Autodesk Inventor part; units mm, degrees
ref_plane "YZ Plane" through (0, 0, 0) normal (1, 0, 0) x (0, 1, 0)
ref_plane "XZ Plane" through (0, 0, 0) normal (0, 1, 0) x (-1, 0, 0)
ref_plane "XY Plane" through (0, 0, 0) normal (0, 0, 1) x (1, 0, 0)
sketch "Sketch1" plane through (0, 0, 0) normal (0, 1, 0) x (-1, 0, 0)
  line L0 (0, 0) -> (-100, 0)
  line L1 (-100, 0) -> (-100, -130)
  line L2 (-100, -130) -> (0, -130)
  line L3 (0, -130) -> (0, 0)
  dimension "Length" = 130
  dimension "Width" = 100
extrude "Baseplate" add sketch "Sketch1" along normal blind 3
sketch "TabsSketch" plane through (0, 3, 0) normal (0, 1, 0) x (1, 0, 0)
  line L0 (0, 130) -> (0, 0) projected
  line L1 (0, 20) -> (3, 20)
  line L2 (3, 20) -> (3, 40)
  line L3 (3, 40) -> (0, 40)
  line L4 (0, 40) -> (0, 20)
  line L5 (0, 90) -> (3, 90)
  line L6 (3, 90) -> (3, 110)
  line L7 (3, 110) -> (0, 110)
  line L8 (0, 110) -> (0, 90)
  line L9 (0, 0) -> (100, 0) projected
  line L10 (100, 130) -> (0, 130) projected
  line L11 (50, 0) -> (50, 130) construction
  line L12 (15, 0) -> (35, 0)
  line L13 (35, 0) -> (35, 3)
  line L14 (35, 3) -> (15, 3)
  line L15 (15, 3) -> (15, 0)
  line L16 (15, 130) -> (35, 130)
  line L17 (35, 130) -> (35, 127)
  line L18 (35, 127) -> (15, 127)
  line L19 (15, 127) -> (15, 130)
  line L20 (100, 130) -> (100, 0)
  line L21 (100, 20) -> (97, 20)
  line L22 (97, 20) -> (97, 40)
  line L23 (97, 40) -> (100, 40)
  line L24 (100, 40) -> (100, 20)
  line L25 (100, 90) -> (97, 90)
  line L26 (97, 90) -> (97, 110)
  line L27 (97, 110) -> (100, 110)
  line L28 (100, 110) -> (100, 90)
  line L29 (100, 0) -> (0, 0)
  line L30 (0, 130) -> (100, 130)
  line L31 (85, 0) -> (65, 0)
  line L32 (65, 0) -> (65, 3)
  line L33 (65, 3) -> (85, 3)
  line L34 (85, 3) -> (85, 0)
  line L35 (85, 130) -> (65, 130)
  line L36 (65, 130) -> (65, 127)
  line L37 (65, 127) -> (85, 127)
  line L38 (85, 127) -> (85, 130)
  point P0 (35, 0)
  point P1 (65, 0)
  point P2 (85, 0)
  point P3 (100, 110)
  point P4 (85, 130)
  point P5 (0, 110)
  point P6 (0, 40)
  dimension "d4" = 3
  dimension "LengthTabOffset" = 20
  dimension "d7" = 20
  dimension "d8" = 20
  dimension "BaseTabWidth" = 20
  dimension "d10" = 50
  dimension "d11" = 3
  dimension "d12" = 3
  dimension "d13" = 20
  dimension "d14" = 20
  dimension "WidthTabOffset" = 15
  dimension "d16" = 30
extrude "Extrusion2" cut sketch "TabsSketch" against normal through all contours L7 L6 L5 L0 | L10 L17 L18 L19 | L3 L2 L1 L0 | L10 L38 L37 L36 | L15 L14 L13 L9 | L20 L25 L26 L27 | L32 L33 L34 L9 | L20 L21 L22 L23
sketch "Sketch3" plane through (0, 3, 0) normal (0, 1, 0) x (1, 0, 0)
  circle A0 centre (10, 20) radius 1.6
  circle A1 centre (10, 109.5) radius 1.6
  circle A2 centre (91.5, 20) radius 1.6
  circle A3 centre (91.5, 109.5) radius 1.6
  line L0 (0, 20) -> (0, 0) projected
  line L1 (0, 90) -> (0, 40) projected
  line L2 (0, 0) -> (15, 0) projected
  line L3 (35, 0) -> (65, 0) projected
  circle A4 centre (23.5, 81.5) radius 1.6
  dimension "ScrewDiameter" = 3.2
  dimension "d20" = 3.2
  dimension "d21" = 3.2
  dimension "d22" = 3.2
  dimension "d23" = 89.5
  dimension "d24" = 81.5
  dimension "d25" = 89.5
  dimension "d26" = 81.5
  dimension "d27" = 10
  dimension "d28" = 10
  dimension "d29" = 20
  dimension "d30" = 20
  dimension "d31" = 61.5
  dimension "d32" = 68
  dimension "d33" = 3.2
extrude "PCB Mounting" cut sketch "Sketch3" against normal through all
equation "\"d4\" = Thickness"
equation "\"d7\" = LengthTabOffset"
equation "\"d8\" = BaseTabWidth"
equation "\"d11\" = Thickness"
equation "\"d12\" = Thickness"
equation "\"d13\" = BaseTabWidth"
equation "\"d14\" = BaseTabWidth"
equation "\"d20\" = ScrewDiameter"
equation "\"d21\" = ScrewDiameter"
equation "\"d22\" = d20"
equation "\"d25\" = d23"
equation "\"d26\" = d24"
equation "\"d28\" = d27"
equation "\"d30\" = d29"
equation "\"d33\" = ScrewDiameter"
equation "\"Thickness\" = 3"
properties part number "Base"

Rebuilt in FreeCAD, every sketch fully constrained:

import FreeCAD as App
import Part
import Sketcher

V = App.Vector

doc = App.newDocument("Part")
body = doc.addObject("PartDesign::Body", "Body")

# Sketch on XZ plane
sketch1 = body.newObject("Sketcher::SketchObject", "Sketch")
sketch1.AttachmentSupport = (doc.getObject("XZ_Plane"), [""])
sketch1.MapMode = "FlatFace"
sketch1.addGeometry([
    Part.LineSegment(V(0, -130, 0), V(0, 0, 0)),
    Part.LineSegment(V(0, 0, 0), V(100, 0, 0)),
    Part.LineSegment(V(100, 0, 0), V(100, -130, 0)),
    Part.LineSegment(V(100, -130, 0), V(0, -130, 0)),
], False)
sketch1.addConstraint([
    Sketcher.Constraint("Coincident", 0, 2, 1, 1),
    Sketcher.Constraint("Coincident", 1, 2, 2, 1),
    Sketcher.Constraint("Coincident", 2, 2, 3, 1),
    Sketcher.Constraint("Coincident", 3, 2, 0, 1),
    Sketcher.Constraint("Vertical", 0),
    Sketcher.Constraint("Horizontal", 1),
    Sketcher.Constraint("Vertical", 2),
    Sketcher.Constraint("Horizontal", 3),
    Sketcher.Constraint("Coincident", 0, 2, -1, 1),
    Sketcher.Constraint("DistanceX", 1, 1, 1, 2, 100.0),
    Sketcher.Constraint("DistanceY", 0, 1, 0, 2, 130.0),
])
pad1 = body.newObject("PartDesign::Pad", "Pad")
pad1.Profile = sketch1
pad1.Length = 3
pad1.Reversed = True

# Sketch on XZ plane
sketch2 = body.newObject("Sketcher::SketchObject", "Sketch001")
sketch2.AttachmentSupport = (doc.getObject("XZ_Plane"), [""])
sketch2.MapMode = "FlatFace"
sketch2.AttachmentOffset = App.Placement(V(0, 0, -3), App.Rotation())
sketch2.addGeometry([
    Part.LineSegment(V(3, -110, 0), V(0, -110, 0)),  # 0
    Part.LineSegment(V(0, -110, 0), V(0, -90, 0)),  # 1
    Part.LineSegment(V(0, -90, 0), V(3, -90, 0)),  # 2
    Part.LineSegment(V(3, -90, 0), V(3, -110, 0)),  # 3
    Part.LineSegment(V(35, -130, 0), V(15, -130, 0)),  # 4
    Part.LineSegment(V(15, -130, 0), V(15, -127, 0)),  # 5
    Part.LineSegment(V(15, -127, 0), V(35, -127, 0)),  # 6
    Part.LineSegment(V(35, -127, 0), V(35, -130, 0)),  # 7
    Part.LineSegment(V(3, -40, 0), V(0, -40, 0)),  # 8
    Part.LineSegment(V(0, -40, 0), V(0, -20, 0)),  # 9
    Part.LineSegment(V(0, -20, 0), V(3, -20, 0)),  # 10
    Part.LineSegment(V(3, -20, 0), V(3, -40, 0)),  # 11
    Part.LineSegment(V(85, -130, 0), V(65, -130, 0)),  # 12
    Part.LineSegment(V(65, -130, 0), V(65, -127, 0)),  # 13
    Part.LineSegment(V(65, -127, 0), V(85, -127, 0)),  # 14
    Part.LineSegment(V(85, -127, 0), V(85, -130, 0)),  # 15
    Part.LineSegment(V(15, -3, 0), V(15, 0, 0)),  # 16
    Part.LineSegment(V(15, 0, 0), V(35, 0, 0)),  # 17
    Part.LineSegment(V(35, 0, 0), V(35, -3, 0)),  # 18
    Part.LineSegment(V(35, -3, 0), V(15, -3, 0)),  # 19
    Part.LineSegment(V(100, -90, 0), V(100, -110, 0)),  # 20
    Part.LineSegment(V(100, -110, 0), V(97, -110, 0)),  # 21
    Part.LineSegment(V(97, -110, 0), V(97, -90, 0)),  # 22
    Part.LineSegment(V(97, -90, 0), V(100, -90, 0)),  # 23
    Part.LineSegment(V(65, -3, 0), V(65, 0, 0)),  # 24
    Part.LineSegment(V(65, 0, 0), V(85, 0, 0)),  # 25
    Part.LineSegment(V(85, 0, 0), V(85, -3, 0)),  # 26
    Part.LineSegment(V(85, -3, 0), V(65, -3, 0)),  # 27
    Part.LineSegment(V(100, -20, 0), V(100, -40, 0)),  # 28
    Part.LineSegment(V(100, -40, 0), V(97, -40, 0)),  # 29
    Part.LineSegment(V(97, -40, 0), V(97, -20, 0)),  # 30
    Part.LineSegment(V(97, -20, 0), V(100, -20, 0)),  # 31
], False)
sketch2.addConstraint([
    Sketcher.Constraint("Coincident", 0, 2, 1, 1),
    Sketcher.Constraint("Coincident", 1, 2, 2, 1),
    Sketcher.Constraint("Coincident", 2, 2, 3, 1),
    Sketcher.Constraint("Coincident", 3, 2, 0, 1),
    Sketcher.Constraint("Coincident", 4, 2, 5, 1),
    Sketcher.Constraint("Coincident", 5, 2, 6, 1),
    Sketcher.Constraint("Coincident", 6, 2, 7, 1),
    Sketcher.Constraint("Coincident", 7, 2, 4, 1),
    Sketcher.Constraint("Coincident", 8, 2, 9, 1),
    Sketcher.Constraint("Coincident", 9, 2, 10, 1),
    Sketcher.Constraint("Coincident", 10, 2, 11, 1),
    Sketcher.Constraint("Coincident", 11, 2, 8, 1),
    Sketcher.Constraint("Coincident", 12, 2, 13, 1),
    Sketcher.Constraint("Coincident", 13, 2, 14, 1),
    Sketcher.Constraint("Coincident", 14, 2, 15, 1),
    Sketcher.Constraint("Coincident", 15, 2, 12, 1),
    Sketcher.Constraint("Coincident", 16, 2, 17, 1),
    Sketcher.Constraint("Coincident", 17, 2, 18, 1),
    Sketcher.Constraint("Coincident", 18, 2, 19, 1),
    Sketcher.Constraint("Coincident", 19, 2, 16, 1),
    Sketcher.Constraint("Coincident", 20, 2, 21, 1),
    Sketcher.Constraint("Coincident", 21, 2, 22, 1),
    Sketcher.Constraint("Coincident", 22, 2, 23, 1),
    Sketcher.Constraint("Coincident", 23, 2, 20, 1),
    Sketcher.Constraint("Coincident", 24, 2, 25, 1),
    Sketcher.Constraint("Coincident", 25, 2, 26, 1),
    Sketcher.Constraint("Coincident", 26, 2, 27, 1),
    Sketcher.Constraint("Coincident", 27, 2, 24, 1),
    Sketcher.Constraint("Coincident", 28, 2, 29, 1),
    Sketcher.Constraint("Coincident", 29, 2, 30, 1),
    Sketcher.Constraint("Coincident", 30, 2, 31, 1),
    Sketcher.Constraint("Coincident", 31, 2, 28, 1),
    Sketcher.Constraint("Horizontal", 0),
    Sketcher.Constraint("Vertical", 1),
    Sketcher.Constraint("Horizontal", 2),
    Sketcher.Constraint("Vertical", 3),
    Sketcher.Constraint("Horizontal", 4),
    Sketcher.Constraint("Vertical", 5),
    Sketcher.Constraint("Horizontal", 6),
    Sketcher.Constraint("Vertical", 7),
    Sketcher.Constraint("Horizontal", 8),
    Sketcher.Constraint("Vertical", 9),
    Sketcher.Constraint("Horizontal", 10),
    Sketcher.Constraint("Vertical", 11),
    Sketcher.Constraint("Horizontal", 12),
    Sketcher.Constraint("Vertical", 13),
    Sketcher.Constraint("Horizontal", 14),
    Sketcher.Constraint("Vertical", 15),
    Sketcher.Constraint("Vertical", 16),
    Sketcher.Constraint("Horizontal", 17),
    Sketcher.Constraint("Vertical", 18),
    Sketcher.Constraint("Horizontal", 19),
    Sketcher.Constraint("Vertical", 20),
    Sketcher.Constraint("Horizontal", 21),
    Sketcher.Constraint("Vertical", 22),
    Sketcher.Constraint("Horizontal", 23),
    Sketcher.Constraint("Vertical", 24),
    Sketcher.Constraint("Horizontal", 25),
    Sketcher.Constraint("Vertical", 26),
    Sketcher.Constraint("Horizontal", 27),
    Sketcher.Constraint("Vertical", 28),
    Sketcher.Constraint("Horizontal", 29),
    Sketcher.Constraint("Vertical", 30),
    Sketcher.Constraint("Horizontal", 31),
    Sketcher.Constraint("PointOnObject", 0, 2, -2),
    Sketcher.Constraint("PointOnObject", 8, 2, -2),
    Sketcher.Constraint("PointOnObject", 16, 2, -1),
    Sketcher.Constraint("PointOnObject", 24, 2, -1),
    Sketcher.Constraint("Horizontal", 7, 2, 12, 2),
    Sketcher.Constraint("Horizontal", 6, 2, 13, 2),
    Sketcher.Constraint("Horizontal", 3, 2, 20, 2),
    Sketcher.Constraint("Horizontal", 2, 2, 22, 2),
    Sketcher.Constraint("Horizontal", 19, 2, 26, 2),
    Sketcher.Constraint("Horizontal", 11, 2, 28, 2),
    Sketcher.Constraint("Horizontal", 10, 2, 30, 2),
    Sketcher.Constraint("Vertical", 3, 2, 10, 2),
    Sketcher.Constraint("Vertical", 5, 2, 16, 2),
    Sketcher.Constraint("Vertical", 7, 2, 17, 2),
    Sketcher.Constraint("Vertical", 13, 2, 24, 2),
    Sketcher.Constraint("Vertical", 15, 2, 25, 2),
    Sketcher.Constraint("Vertical", 23, 2, 28, 2),
    Sketcher.Constraint("Vertical", 22, 2, 29, 2),
    Sketcher.Constraint("Equal", 6, 12),
    Sketcher.Constraint("Equal", 10, 21),
    Sketcher.Constraint("Equal", 27, 1),
    Sketcher.Constraint("Equal", 31, 5),
    Sketcher.Constraint("Equal", 3, 9),
    Sketcher.Constraint("Equal", 15, 16),
    Sketcher.Constraint("DistanceX", 0, 2, 0, 1, 3.0),
    Sketcher.Constraint("DistanceX", 4, 2, 4, 1, 20.0),
    Sketcher.Constraint("DistanceX", -1, 1, 4, 2, 15.0),
    Sketcher.Constraint("DistanceY", 9, 2, -1, 1, 20.0),
    Sketcher.Constraint("DistanceY", 4, 2, 3, 2, 20.0),
    Sketcher.Constraint("DistanceY", 1, 2, 8, 2, 50.0),
    Sketcher.Constraint("DistanceX", 7, 2, 12, 2, 30.0),
    Sketcher.Constraint("DistanceX", 14, 2, 20, 2, 15.0),
])
pocket1 = body.newObject("PartDesign::Pocket", "Pocket")
pocket1.Profile = sketch2
pocket1.Type = "ThroughAll"
pocket1.Reversed = True

# Sketch on XZ plane
sketch3 = body.newObject("Sketcher::SketchObject", "Sketch002")
sketch3.AttachmentSupport = (doc.getObject("XZ_Plane"), [""])
sketch3.MapMode = "FlatFace"
sketch3.AttachmentOffset = App.Placement(V(0, 0, -3), App.Rotation())
sketch3.addGeometry([
    Part.Circle(V(10, -20, 0), V(0, 0, 1), 1.6),  # 0
    Part.Circle(V(10, -109.5, 0), V(0, 0, 1), 1.6),  # 1
    Part.Circle(V(91.5, -20, 0), V(0, 0, 1), 1.6),  # 2
    Part.Circle(V(91.5, -109.5, 0), V(0, 0, 1), 1.6),  # 3
    Part.Circle(V(23.5, -81.5, 0), V(0, 0, 1), 1.6),  # 4
], False)
sketch3.addConstraint([
    Sketcher.Constraint("Equal", 0, 1),
    Sketcher.Constraint("Equal", 1, 2),
    Sketcher.Constraint("Equal", 2, 3),
    Sketcher.Constraint("Equal", 3, 4),
    Sketcher.Constraint("Horizontal", 0, 3, 2, 3),
    Sketcher.Constraint("Horizontal", 1, 3, 3, 3),
    Sketcher.Constraint("Vertical", 0, 3, 1, 3),
    Sketcher.Constraint("Vertical", 2, 3, 3, 3),
    Sketcher.Constraint("Diameter", 0, 3.2),
    Sketcher.Constraint("DistanceX", -1, 1, 0, 3, 10.0),
    Sketcher.Constraint("DistanceY", 0, 3, -1, 1, 20.0),
    Sketcher.Constraint("DistanceX", 4, 3, 3, 3, 68.0),
    Sketcher.Constraint("DistanceY", 4, 3, -1, 1, 81.5),
    Sketcher.Constraint("DistanceY", 1, 3, 0, 3, 89.5),
    Sketcher.Constraint("DistanceX", 0, 3, 2, 3, 81.5),
])
pocket2 = body.newObject("PartDesign::Pocket", "Pocket001")
pocket2.Profile = sketch3
pocket2.Type = "ThroughAll"
pocket2.Reversed = True

doc.recompute()
